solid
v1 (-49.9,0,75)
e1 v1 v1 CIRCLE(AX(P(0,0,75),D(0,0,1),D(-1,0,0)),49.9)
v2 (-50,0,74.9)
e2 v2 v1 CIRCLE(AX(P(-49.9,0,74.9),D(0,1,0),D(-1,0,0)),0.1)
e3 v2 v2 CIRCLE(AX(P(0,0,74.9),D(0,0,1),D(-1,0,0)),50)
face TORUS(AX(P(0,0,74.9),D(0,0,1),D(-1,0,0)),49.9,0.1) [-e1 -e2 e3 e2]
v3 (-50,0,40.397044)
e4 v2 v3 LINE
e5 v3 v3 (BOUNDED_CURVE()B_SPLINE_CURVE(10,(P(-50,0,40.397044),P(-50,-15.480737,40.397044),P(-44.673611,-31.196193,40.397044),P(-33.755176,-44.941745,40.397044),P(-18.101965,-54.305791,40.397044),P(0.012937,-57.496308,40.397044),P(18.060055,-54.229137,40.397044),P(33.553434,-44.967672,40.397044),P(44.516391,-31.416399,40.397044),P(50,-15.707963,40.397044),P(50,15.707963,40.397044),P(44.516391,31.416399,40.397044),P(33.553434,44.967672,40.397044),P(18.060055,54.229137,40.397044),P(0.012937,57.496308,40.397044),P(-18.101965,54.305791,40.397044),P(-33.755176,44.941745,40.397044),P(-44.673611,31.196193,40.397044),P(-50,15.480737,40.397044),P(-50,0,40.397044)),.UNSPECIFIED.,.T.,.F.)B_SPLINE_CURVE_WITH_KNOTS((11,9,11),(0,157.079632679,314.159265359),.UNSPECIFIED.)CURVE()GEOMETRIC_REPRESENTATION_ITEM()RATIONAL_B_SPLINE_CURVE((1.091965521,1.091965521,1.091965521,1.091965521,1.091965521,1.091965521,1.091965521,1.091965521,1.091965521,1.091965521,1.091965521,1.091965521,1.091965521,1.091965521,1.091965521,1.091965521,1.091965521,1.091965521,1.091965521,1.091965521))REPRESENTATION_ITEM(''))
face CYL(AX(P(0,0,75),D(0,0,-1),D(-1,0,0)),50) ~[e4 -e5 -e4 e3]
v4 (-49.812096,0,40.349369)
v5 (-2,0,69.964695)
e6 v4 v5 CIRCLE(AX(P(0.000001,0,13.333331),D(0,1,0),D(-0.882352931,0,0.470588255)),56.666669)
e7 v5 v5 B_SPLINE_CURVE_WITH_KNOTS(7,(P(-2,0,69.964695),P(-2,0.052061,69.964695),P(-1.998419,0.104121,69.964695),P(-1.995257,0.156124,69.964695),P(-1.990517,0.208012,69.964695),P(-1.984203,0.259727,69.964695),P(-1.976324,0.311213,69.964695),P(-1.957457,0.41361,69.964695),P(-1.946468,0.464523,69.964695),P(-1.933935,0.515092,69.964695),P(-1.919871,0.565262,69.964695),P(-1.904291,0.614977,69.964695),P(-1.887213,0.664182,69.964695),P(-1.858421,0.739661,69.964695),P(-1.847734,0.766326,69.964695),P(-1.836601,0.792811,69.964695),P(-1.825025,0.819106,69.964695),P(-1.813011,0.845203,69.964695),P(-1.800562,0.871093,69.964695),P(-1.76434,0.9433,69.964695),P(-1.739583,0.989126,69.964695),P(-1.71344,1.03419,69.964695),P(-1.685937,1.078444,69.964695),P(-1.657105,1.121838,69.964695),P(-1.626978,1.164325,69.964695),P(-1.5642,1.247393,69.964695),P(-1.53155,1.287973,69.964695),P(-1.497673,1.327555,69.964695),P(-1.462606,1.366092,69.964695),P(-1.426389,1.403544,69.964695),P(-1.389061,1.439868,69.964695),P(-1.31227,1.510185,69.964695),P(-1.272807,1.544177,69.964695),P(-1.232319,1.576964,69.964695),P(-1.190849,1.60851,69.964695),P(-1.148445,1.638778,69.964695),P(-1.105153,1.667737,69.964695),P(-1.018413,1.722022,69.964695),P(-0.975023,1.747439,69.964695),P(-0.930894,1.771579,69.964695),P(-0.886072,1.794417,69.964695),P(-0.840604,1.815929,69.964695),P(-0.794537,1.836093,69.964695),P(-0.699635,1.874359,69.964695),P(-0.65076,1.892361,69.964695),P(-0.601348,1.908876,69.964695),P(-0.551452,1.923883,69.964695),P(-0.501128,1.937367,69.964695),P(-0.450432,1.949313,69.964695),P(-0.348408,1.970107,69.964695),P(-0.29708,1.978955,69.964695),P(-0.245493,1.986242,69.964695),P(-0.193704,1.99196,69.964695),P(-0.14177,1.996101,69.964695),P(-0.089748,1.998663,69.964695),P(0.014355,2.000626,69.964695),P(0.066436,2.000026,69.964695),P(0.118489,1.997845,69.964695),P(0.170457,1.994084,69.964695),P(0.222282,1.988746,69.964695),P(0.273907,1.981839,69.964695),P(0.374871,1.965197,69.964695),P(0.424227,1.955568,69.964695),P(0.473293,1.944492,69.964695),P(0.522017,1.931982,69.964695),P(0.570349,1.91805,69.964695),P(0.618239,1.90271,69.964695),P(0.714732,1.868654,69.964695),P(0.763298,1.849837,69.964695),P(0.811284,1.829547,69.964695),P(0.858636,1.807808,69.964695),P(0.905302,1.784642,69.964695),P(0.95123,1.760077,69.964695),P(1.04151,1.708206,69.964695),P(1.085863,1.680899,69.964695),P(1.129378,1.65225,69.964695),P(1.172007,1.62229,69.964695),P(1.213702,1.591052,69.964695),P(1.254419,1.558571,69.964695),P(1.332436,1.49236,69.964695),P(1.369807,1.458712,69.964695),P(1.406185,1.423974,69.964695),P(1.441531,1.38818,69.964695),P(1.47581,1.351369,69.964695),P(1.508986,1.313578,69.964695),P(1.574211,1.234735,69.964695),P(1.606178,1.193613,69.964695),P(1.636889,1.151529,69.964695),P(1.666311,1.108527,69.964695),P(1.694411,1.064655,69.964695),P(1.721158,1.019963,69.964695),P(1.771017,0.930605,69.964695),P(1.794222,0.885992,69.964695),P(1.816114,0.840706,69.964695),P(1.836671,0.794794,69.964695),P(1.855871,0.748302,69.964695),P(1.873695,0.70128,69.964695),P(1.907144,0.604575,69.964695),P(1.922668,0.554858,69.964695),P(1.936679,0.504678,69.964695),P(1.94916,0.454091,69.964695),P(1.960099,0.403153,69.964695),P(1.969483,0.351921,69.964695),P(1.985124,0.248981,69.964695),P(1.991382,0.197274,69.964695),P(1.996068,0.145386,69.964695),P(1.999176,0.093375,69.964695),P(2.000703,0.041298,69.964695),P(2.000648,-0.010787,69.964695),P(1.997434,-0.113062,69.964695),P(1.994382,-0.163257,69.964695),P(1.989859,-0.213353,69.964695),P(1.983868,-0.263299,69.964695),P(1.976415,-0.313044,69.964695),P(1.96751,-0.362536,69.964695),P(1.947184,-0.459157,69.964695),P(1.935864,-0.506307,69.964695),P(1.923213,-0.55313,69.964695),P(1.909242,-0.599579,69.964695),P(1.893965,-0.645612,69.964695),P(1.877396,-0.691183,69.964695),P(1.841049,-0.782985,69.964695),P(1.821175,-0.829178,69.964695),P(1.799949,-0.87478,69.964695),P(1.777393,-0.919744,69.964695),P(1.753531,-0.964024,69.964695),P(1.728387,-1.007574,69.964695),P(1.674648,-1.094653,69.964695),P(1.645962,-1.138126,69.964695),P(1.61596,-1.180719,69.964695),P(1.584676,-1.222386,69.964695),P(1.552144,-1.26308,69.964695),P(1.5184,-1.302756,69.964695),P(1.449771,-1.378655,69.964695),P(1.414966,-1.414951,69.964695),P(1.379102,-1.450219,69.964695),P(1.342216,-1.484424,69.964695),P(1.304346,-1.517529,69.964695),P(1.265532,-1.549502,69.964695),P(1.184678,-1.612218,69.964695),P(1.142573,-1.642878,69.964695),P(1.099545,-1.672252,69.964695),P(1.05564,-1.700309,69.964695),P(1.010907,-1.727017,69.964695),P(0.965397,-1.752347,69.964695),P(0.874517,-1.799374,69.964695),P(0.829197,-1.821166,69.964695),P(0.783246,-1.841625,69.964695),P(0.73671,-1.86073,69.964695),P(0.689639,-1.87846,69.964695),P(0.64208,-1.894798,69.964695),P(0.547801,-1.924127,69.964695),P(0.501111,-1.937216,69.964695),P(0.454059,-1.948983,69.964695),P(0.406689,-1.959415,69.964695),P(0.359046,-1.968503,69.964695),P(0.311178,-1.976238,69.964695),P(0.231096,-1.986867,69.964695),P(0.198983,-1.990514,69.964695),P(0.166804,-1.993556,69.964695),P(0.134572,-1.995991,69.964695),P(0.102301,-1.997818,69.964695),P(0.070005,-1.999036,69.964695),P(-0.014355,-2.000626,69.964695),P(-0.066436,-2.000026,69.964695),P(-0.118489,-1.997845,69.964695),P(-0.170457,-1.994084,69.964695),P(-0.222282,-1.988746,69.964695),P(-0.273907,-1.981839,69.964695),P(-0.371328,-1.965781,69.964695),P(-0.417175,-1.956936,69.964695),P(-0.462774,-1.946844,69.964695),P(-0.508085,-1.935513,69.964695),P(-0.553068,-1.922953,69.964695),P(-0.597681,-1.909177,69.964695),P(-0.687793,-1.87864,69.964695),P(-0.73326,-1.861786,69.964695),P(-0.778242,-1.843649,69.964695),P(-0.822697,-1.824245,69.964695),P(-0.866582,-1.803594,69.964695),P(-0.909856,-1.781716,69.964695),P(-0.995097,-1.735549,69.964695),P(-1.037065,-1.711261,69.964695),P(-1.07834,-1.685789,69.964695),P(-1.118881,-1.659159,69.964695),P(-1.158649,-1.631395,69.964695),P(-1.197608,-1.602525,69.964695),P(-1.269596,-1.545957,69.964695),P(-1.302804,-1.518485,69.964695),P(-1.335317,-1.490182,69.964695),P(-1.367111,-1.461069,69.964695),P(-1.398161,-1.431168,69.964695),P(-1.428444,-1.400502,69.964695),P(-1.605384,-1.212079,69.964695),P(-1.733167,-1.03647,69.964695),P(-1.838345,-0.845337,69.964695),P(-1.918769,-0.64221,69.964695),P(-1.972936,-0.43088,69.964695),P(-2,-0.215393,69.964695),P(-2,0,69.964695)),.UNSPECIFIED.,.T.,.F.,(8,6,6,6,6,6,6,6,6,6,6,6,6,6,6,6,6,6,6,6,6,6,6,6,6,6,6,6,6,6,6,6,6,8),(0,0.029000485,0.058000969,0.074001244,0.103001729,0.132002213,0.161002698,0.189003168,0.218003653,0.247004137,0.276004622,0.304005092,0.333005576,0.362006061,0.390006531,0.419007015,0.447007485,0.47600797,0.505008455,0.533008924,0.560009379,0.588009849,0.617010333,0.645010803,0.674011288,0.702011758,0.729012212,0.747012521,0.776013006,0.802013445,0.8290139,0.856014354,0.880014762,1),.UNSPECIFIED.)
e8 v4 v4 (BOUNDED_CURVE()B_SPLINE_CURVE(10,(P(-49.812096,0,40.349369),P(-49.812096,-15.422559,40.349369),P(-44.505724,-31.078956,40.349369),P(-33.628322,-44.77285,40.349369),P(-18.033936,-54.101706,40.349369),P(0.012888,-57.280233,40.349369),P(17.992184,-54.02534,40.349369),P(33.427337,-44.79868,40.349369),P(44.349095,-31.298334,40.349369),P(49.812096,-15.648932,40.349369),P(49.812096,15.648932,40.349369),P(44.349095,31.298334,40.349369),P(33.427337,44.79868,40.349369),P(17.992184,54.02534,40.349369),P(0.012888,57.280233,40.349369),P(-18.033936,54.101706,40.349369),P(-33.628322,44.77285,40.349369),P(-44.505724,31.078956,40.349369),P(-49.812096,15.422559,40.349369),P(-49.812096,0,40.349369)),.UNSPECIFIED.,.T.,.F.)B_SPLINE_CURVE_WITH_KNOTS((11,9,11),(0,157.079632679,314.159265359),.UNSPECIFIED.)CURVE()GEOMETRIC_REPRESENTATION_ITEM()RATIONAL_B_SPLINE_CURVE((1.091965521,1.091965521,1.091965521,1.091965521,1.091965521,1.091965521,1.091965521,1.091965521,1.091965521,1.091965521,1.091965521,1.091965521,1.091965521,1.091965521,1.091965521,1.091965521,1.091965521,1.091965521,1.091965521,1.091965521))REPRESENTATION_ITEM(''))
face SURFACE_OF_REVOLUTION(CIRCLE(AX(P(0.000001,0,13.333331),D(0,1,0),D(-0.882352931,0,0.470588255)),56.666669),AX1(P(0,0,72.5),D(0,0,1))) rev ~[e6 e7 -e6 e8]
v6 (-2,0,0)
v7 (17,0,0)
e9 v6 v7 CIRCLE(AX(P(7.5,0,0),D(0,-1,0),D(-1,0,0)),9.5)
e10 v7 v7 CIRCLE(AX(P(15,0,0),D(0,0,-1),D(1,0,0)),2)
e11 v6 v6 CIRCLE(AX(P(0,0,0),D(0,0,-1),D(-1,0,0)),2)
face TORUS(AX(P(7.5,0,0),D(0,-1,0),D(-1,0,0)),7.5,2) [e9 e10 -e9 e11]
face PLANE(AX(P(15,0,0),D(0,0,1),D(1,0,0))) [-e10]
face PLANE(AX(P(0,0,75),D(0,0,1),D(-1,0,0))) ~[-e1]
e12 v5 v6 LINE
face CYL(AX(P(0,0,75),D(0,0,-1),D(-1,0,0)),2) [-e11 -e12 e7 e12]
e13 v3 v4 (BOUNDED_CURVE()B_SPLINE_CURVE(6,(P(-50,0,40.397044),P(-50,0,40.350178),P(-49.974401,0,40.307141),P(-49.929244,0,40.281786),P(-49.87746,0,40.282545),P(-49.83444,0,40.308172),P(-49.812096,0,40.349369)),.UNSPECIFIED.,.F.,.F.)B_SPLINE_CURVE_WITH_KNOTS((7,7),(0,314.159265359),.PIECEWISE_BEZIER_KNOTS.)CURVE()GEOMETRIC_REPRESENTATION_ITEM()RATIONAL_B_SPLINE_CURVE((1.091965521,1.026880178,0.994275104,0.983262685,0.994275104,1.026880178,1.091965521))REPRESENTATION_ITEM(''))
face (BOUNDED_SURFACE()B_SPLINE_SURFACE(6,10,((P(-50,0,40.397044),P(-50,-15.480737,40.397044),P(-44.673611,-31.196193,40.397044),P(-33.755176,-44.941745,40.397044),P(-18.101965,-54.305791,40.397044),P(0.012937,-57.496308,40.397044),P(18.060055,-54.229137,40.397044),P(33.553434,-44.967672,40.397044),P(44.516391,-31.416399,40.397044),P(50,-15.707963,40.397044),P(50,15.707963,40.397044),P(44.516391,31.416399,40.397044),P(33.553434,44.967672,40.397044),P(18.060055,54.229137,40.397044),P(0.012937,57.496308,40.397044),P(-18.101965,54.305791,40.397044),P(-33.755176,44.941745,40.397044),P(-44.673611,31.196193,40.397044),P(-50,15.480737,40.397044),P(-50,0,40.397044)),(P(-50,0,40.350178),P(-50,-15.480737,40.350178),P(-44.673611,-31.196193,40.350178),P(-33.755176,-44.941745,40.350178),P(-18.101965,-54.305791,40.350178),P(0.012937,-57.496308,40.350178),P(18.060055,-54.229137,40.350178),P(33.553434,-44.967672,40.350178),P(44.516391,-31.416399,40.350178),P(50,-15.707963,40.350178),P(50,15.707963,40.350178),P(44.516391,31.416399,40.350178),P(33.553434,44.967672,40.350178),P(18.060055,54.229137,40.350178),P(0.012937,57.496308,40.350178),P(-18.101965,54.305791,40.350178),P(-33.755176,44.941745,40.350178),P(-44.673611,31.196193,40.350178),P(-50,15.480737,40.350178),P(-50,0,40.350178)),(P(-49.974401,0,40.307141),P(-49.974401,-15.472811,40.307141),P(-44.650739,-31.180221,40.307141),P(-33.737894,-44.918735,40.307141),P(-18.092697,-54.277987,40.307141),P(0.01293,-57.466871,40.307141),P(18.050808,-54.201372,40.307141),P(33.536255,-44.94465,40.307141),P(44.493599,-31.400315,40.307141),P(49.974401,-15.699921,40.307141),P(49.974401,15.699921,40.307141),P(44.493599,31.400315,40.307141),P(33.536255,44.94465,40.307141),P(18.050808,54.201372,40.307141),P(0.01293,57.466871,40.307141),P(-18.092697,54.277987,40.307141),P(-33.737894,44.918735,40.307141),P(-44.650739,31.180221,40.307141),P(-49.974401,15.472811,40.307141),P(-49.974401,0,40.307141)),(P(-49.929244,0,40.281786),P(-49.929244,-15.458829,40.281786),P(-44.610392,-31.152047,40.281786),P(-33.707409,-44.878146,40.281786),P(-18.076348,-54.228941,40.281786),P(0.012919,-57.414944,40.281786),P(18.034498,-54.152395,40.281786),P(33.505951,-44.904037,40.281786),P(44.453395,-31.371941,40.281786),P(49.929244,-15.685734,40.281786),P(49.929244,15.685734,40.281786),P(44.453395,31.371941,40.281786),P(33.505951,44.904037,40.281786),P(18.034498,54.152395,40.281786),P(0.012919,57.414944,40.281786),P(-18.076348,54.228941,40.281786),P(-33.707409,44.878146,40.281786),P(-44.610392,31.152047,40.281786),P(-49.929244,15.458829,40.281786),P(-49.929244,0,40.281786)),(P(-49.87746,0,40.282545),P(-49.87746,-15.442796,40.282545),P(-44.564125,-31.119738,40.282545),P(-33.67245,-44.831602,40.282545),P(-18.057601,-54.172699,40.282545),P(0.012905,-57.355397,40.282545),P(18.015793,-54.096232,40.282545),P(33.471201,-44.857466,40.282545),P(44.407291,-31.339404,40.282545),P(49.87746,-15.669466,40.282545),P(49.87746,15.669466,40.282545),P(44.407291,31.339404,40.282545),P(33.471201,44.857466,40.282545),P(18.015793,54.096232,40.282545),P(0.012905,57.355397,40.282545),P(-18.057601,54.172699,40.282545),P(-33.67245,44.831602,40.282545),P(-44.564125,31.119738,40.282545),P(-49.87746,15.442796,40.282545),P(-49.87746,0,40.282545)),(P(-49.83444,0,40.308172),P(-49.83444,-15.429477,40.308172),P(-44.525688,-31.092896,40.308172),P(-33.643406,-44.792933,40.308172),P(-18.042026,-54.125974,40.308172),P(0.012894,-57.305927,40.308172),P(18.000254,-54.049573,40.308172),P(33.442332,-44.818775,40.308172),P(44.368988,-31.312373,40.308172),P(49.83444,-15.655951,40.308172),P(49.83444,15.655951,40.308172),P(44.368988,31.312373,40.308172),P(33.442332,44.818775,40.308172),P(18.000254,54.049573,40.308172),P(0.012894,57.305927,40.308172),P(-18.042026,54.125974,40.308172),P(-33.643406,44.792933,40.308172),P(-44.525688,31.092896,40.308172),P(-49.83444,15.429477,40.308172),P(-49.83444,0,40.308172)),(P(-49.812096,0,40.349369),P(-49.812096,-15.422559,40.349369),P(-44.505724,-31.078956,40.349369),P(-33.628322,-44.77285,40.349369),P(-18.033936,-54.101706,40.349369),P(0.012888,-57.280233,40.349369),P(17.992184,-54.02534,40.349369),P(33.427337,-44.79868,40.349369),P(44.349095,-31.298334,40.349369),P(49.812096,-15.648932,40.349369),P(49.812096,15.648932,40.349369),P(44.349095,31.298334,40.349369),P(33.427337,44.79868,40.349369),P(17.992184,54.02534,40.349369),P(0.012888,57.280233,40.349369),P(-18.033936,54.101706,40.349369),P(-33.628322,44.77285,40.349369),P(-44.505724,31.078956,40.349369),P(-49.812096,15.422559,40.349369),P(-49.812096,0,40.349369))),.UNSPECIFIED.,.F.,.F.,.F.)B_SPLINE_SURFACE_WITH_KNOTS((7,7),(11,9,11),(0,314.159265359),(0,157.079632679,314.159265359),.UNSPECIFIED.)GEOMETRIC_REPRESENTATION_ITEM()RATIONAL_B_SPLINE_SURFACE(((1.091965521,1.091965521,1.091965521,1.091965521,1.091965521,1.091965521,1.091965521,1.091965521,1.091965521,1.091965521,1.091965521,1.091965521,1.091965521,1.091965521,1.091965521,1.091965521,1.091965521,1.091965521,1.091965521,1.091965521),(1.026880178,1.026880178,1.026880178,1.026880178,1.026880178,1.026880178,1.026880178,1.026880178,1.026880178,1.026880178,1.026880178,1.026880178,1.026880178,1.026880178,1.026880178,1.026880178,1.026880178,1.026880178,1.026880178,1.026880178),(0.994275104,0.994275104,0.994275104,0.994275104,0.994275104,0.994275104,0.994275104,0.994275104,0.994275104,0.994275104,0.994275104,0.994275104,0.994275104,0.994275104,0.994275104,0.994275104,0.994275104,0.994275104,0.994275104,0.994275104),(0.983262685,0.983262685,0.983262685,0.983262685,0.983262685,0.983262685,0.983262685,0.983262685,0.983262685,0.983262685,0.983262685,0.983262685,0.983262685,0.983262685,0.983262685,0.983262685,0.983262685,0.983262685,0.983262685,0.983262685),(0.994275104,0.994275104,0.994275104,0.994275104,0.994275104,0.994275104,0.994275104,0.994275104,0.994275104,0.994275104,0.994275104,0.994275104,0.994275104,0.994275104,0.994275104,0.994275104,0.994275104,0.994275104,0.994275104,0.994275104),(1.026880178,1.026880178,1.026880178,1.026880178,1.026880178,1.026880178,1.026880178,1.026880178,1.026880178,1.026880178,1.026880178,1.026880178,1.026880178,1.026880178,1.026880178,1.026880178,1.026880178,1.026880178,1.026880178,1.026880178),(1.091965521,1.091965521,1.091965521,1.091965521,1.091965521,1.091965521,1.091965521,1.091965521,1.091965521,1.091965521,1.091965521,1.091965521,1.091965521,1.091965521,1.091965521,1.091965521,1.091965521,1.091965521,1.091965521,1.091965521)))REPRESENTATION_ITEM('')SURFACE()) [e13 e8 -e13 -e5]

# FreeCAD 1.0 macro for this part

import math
import FreeCAD as App
import Part
import Sketcher
Q = App.Units.Quantity


def edges_at(feature, points):
    """Names of the edges that pass closest to the given points."""
    edges = feature.Shape.Edges
    near = lambda p: min(range(len(edges)), key=lambda i: edges[i].distToShape(Part.Vertex(*p))[0])
    return sorted({f"Edge{near(p) + 1}" for p in points})

doc = App.newDocument("Part")
body = doc.addObject("PartDesign::Body", "Body")

sketch1 = body.newObject("Sketcher::SketchObject", "Sketch")
sketch1.AttachmentSupport = (doc.getObject("XY_Plane"), [""])
sketch1.MapMode = "FlatFace"
sketch1.addGeometry(Part.Circle(App.Vector(15, 0, 0), App.Vector(0, 0, 1), 2), False)
sketch1.addConstraint([
    Sketcher.Constraint("PointOnObject", 0, 3, -1),
    Sketcher.Constraint("Diameter", 0, Q("4 mm")),
    Sketcher.Constraint("DistanceX", -1, 1, 0, 3, Q("15 mm")),
])

sketch2 = body.newObject("Sketcher::SketchObject", "Sketch001")
sketch2.AttachmentSupport = (doc.getObject("XZ_Plane"), [""])
sketch2.MapMode = "FlatFace"
sketch2.addGeometry([
    Part.LineSegment(App.Vector(0, 75, 0), App.Vector(0, 0, 0)),
    Part.ArcOfCircle(Part.Circle(App.Vector(8, 0, 0), App.Vector(0, 0, 1), 8), math.radians(180), math.radians(360)),
], False)
sketch2.addConstraint([
    Sketcher.Constraint("Tangent", 0, 2, 1, 1),
    Sketcher.Constraint("Vertical", 0),
    Sketcher.Constraint("Coincident", 0, 2, -1, 1),
    Sketcher.Constraint("PointOnObject", 1, 2, -1),
    Sketcher.Constraint("Radius", 1, Q("7.5 mm")),
    Sketcher.Constraint("DistanceY", 0, 2, 0, 1, Q("75 mm")),
])
doc.recompute()

additivepipe = body.newObject("PartDesign::AdditivePipe", "AdditivePipe")
additivepipe.Profile = sketch1
additivepipe.Spine = (sketch2, ["Edge1", "Edge2"])

sketch3 = body.newObject("Sketcher::SketchObject", "Sketch002")
sketch3.AttachmentSupport = (doc.getObject("XZ_Plane"), [""])
sketch3.MapMode = "FlatFace"
sketch3.addGeometry([
    Part.LineSegment(App.Vector(-50, 75, 0), App.Vector(-50, 40, 0)),
    Part.ArcOfCircle(Part.Circle(App.Vector(0, 13, 0), App.Vector(0, 0, 1), 57), math.radians(90), math.radians(152)),
    Part.LineSegment(App.Vector(0, 70, 0), App.Vector(0, 75, 0)),
    Part.LineSegment(App.Vector(0, 75, 0), App.Vector(-50, 75, 0)),
], False)
sketch3.addConstraint([
    Sketcher.Constraint("Coincident", 0, 2, 1, 2),
    Sketcher.Constraint("Coincident", 1, 1, 2, 1),
    Sketcher.Constraint("Coincident", 2, 2, 3, 1),
    Sketcher.Constraint("Coincident", 3, 2, 0, 1),
    Sketcher.Constraint("Vertical", 0),
    Sketcher.Constraint("Vertical", 2),
    Sketcher.Constraint("Horizontal", 3),
    Sketcher.Constraint("PointOnObject", 1, 3, -2),
    Sketcher.Constraint("PointOnObject", 1, 1, -2),
    Sketcher.Constraint("DistanceX", 3, 2, 3, 1, Q("50 mm")),
    Sketcher.Constraint("DistanceY", 0, 2, 0, 1, Q("35 mm")),
    Sketcher.Constraint("DistanceY", 2, 1, 2, 2, Q("5 mm")),
    Sketcher.Constraint("DistanceY", -1, 1, 0, 2, Q("40 mm")),
])
revolution = body.newObject("PartDesign::Revolution", "Revolution")
revolution.Profile = sketch3
revolution.ReferenceAxis = (sketch3, ["V_Axis"])
revolution.Angle = 360
doc.recompute()

fillet = body.newObject("PartDesign::Fillet", "Fillet")
fillet.Base = (revolution, edges_at(revolution, [(50, 0, 75), (50, 0, 40)]))
fillet.Radius = 0.1

doc.recompute()
